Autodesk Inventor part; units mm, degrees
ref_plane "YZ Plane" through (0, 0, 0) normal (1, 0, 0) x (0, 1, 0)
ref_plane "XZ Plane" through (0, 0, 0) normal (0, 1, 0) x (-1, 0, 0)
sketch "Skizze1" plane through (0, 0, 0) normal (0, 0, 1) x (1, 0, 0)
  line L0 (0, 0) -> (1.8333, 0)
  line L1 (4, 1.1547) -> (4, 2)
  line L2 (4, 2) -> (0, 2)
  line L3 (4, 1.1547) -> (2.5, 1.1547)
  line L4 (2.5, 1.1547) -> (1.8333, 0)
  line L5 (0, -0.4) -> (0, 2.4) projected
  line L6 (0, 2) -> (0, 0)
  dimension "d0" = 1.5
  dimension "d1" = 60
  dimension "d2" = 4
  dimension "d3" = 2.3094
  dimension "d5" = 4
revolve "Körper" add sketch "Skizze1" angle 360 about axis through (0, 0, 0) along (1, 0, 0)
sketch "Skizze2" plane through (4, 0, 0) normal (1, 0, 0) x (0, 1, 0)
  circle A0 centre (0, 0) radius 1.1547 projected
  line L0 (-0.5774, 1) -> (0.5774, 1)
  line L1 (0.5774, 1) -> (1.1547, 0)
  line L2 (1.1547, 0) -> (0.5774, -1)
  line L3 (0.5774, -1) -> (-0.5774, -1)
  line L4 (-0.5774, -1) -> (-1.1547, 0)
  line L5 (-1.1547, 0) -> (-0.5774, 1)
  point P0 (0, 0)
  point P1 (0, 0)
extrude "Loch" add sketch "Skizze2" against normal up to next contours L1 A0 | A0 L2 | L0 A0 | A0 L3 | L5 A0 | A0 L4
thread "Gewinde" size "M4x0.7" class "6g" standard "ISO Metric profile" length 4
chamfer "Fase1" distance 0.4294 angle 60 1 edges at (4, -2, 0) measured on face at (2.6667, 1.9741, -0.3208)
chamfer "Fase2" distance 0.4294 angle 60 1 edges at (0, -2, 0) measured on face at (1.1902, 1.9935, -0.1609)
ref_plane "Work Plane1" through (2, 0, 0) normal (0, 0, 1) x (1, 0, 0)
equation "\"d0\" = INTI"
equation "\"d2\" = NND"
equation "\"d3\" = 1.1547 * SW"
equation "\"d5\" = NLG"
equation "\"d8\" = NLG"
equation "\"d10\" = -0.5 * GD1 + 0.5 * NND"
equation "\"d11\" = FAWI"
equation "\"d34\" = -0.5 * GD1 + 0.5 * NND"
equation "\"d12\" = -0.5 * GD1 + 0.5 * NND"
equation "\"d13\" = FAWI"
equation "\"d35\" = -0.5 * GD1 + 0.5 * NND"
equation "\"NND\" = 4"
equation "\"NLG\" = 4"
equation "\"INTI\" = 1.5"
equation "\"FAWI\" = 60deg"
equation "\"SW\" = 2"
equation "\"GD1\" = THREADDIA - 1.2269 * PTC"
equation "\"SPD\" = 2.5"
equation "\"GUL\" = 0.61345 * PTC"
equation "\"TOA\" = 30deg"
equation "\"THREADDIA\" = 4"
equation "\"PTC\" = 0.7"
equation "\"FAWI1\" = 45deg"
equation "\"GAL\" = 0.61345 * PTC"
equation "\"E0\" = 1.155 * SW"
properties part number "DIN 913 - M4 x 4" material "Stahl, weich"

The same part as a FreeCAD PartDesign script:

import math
import FreeCAD as App
import Part
import Sketcher


def edges_at(feature, points):
    """Names of the edges that pass closest to the given points."""
    edges = feature.Shape.Edges
    near = lambda p: min(range(len(edges)), key=lambda i: edges[i].distToShape(Part.Vertex(*p))[0])
    return sorted({f"Edge{near(p) + 1}" for p in points})


def add_polygon(sketch, points):
    """Adds a closed chain of lines whose ends are joined by coincident constraints."""
    first, n = sketch.GeometryCount, len(points)
    for a, b in zip(points, points[1:] + points[:1]):
        sketch.addGeometry(Part.LineSegment(App.Vector(*a, 0), App.Vector(*b, 0)), False)
    for i in range(n):
        sketch.addConstraint(Sketcher.Constraint("Coincident", first + i, 2, first + (i + 1) % n, 1))

doc = App.newDocument("Part")
params = doc.addObject("Spreadsheet::Sheet", "Params")
for row, (alias, value) in enumerate([
    ("sketch1_width", "4 mm"),
    ("sketch1_width2", "1.5 mm"),
    ("sketch1_height", "2 mm"),
    ("revolution_angle", "360 deg"),
    ("chamfer_size", "0.4294 mm"),
    ("chamfer2_size", "0.4294 mm"),
], start=1):
    params.set(f"A{row}", alias)
    params.set(f"B{row}", "=" + value)
    params.setAlias(f"B{row}", alias)

body = doc.addObject("PartDesign::Body", "Body")

sketch1 = body.newObject("Sketcher::SketchObject", "Sketch")
sketch1.AttachmentSupport = (doc.getObject("XY_Plane"), [""])
sketch1.MapMode = "FlatFace"
add_polygon(sketch1, [(0, 2), (0, 0), (1.8, 0), (2.5, 1.2), (4, 1.2), (4, 2)])
sketch1.addConstraint([
    Sketcher.Constraint("Vertical", 0),
    Sketcher.Constraint("Horizontal", 1),
    Sketcher.Constraint("Horizontal", 3),
    Sketcher.Constraint("Vertical", 4),
    Sketcher.Constraint("Horizontal", 5),
    Sketcher.Constraint("Coincident", 0, 2, -1, 1),
    Sketcher.Constraint("DistanceX", 5, 2, 5, 1, 4.0),
    Sketcher.Constraint("DistanceX", 3, 1, 3, 2, 1.5),
    Sketcher.Constraint("DistanceY", 0, 2, 0, 1, 2.0),
    Sketcher.Constraint("DistanceX", 1, 1, 1, 2, 1.8333),
    Sketcher.Constraint("DistanceY", 4, 1, 4, 2, 0.8453),
])
sketch1.setExpression("Constraints[12]", "Params.sketch1_width")
sketch1.setExpression("Constraints[13]", "Params.sketch1_width2")
sketch1.setExpression("Constraints[14]", "Params.sketch1_height")
revolution = body.newObject("PartDesign::Revolution", "Revolution")
revolution.Profile = sketch1
revolution.ReferenceAxis = (sketch1, ["H_Axis"])
revolution.setExpression("Angle", "Params.revolution_angle")

sketch2 = body.newObject("Sketcher::SketchObject", "Sketch001")
sketch2.AttachmentSupport = (doc.getObject("YZ_Plane"), [""])
sketch2.MapMode = "FlatFace"
sketch2.AttachmentOffset = App.Placement(App.Vector(0, 0, 4), App.Rotation())
sketch2.addGeometry([
    Part.LineSegment(App.Vector(0.6, 1, 0), App.Vector(1.2, 0, 0)),
    Part.ArcOfCircle(Part.Circle(App.Vector(0, 0, 0), App.Vector(0, 0, 1), 1.2), math.radians(0), math.radians(60)),
    Part.ArcOfCircle(Part.Circle(App.Vector(0, 0, 0), App.Vector(0, 0, 1), 1.2), math.radians(-60), math.radians(0)),
    Part.LineSegment(App.Vector(1.2, 0, 0), App.Vector(0.6, -1, 0)),
    Part.LineSegment(App.Vector(-0.6, 1, 0), App.Vector(0.6, 1, 0)),
    Part.ArcOfCircle(Part.Circle(App.Vector(0, 0, 0), App.Vector(0, 0, 1), 1.2), math.radians(60), math.radians(120)),
    Part.ArcOfCircle(Part.Circle(App.Vector(0, 0, 0), App.Vector(0, 0, 1), 1.2), math.radians(-120), math.radians(-60)),
    Part.LineSegment(App.Vector(-0.6, -1, 0), App.Vector(0.6, -1, 0)),
    Part.LineSegment(App.Vector(-1.2, 0, 0), App.Vector(-0.6, 1, 0)),
    Part.ArcOfCircle(Part.Circle(App.Vector(0, 0, 0), App.Vector(0, 0, 1), 1.2), math.radians(120), math.radians(180)),
    Part.ArcOfCircle(Part.Circle(App.Vector(0, 0, 0), App.Vector(0, 0, 1), 1.2), math.radians(180), math.radians(240)),
    Part.LineSegment(App.Vector(-1.2, 0, 0), App.Vector(-0.6, -1, 0)),
], False)
sketch2.addConstraint([
    Sketcher.Constraint("Coincident", 0, 1, 1, 2),
    Sketcher.Constraint("Coincident", 1, 1, 0, 2),
    Sketcher.Constraint("Coincident", 2, 1, 3, 2),
    Sketcher.Constraint("Coincident", 3, 1, 2, 2),
    Sketcher.Constraint("Coincident", 4, 1, 5, 2),
    Sketcher.Constraint("Coincident", 5, 1, 4, 2),
    Sketcher.Constraint("Coincident", 6, 1, 7, 1),
    Sketcher.Constraint("Coincident", 7, 2, 6, 2),
    Sketcher.Constraint("Coincident", 8, 1, 9, 2),
    Sketcher.Constraint("Coincident", 9, 1, 8, 2),
    Sketcher.Constraint("Coincident", 10, 1, 11, 1),
    Sketcher.Constraint("Coincident", 11, 2, 10, 2),
    Sketcher.Constraint("Horizontal", 4),
    Sketcher.Constraint("Horizontal", 7),
    Sketcher.Constraint("Coincident", 1, 3, -1, 1),
    Sketcher.Constraint("Coincident", 2, 3, -1, 1),
    Sketcher.Constraint("Coincident", 5, 3, -1, 1),
    Sketcher.Constraint("Coincident", 6, 3, -1, 1),
    Sketcher.Constraint("Coincident", 9, 3, -1, 1),
    Sketcher.Constraint("Coincident", 10, 3, -1, 1),
    Sketcher.Constraint("Coincident", 3, 1, 1, 1),
    Sketcher.Constraint("Coincident", 5, 1, 0, 1),
    Sketcher.Constraint("Coincident", 7, 2, 2, 1),
    Sketcher.Constraint("Coincident", 9, 1, 4, 1),
    Sketcher.Constraint("Coincident", 10, 1, 8, 1),
    Sketcher.Constraint("PointOnObject", 1, 1, -1),
    Sketcher.Constraint("PointOnObject", 8, 1, -1),
    Sketcher.Constraint("Parallel", 3, 8),
    Sketcher.Constraint("Parallel", 0, 11),
    Sketcher.Constraint("DistanceY", -1, 1, 0, 1, 1.0),
    Sketcher.Constraint("Radius", 1, 1.1547),
])
pad1 = body.newObject("PartDesign::Pad", "Pad")
pad1.Profile = sketch2
pad1.Type = "UpToFirst"
pad1.Reversed = True
doc.recompute()

chamfer = body.newObject("PartDesign::Chamfer", "Chamfer")
chamfer.Base = (pad1, edges_at(pad1, [(4, -2, 0)]))
chamfer.ChamferType = "Distance and Angle"
chamfer.setExpression("Size", "Params.chamfer_size")
chamfer.Angle = 60
doc.recompute()

chamfer2 = body.newObject("PartDesign::Chamfer", "Chamfer001")
chamfer2.Base = (chamfer, edges_at(chamfer, [(0, -2, 0)]))
chamfer2.ChamferType = "Distance and Angle"
chamfer2.setExpression("Size", "Params.chamfer2_size")
chamfer2.Angle = 60

doc.recompute()
